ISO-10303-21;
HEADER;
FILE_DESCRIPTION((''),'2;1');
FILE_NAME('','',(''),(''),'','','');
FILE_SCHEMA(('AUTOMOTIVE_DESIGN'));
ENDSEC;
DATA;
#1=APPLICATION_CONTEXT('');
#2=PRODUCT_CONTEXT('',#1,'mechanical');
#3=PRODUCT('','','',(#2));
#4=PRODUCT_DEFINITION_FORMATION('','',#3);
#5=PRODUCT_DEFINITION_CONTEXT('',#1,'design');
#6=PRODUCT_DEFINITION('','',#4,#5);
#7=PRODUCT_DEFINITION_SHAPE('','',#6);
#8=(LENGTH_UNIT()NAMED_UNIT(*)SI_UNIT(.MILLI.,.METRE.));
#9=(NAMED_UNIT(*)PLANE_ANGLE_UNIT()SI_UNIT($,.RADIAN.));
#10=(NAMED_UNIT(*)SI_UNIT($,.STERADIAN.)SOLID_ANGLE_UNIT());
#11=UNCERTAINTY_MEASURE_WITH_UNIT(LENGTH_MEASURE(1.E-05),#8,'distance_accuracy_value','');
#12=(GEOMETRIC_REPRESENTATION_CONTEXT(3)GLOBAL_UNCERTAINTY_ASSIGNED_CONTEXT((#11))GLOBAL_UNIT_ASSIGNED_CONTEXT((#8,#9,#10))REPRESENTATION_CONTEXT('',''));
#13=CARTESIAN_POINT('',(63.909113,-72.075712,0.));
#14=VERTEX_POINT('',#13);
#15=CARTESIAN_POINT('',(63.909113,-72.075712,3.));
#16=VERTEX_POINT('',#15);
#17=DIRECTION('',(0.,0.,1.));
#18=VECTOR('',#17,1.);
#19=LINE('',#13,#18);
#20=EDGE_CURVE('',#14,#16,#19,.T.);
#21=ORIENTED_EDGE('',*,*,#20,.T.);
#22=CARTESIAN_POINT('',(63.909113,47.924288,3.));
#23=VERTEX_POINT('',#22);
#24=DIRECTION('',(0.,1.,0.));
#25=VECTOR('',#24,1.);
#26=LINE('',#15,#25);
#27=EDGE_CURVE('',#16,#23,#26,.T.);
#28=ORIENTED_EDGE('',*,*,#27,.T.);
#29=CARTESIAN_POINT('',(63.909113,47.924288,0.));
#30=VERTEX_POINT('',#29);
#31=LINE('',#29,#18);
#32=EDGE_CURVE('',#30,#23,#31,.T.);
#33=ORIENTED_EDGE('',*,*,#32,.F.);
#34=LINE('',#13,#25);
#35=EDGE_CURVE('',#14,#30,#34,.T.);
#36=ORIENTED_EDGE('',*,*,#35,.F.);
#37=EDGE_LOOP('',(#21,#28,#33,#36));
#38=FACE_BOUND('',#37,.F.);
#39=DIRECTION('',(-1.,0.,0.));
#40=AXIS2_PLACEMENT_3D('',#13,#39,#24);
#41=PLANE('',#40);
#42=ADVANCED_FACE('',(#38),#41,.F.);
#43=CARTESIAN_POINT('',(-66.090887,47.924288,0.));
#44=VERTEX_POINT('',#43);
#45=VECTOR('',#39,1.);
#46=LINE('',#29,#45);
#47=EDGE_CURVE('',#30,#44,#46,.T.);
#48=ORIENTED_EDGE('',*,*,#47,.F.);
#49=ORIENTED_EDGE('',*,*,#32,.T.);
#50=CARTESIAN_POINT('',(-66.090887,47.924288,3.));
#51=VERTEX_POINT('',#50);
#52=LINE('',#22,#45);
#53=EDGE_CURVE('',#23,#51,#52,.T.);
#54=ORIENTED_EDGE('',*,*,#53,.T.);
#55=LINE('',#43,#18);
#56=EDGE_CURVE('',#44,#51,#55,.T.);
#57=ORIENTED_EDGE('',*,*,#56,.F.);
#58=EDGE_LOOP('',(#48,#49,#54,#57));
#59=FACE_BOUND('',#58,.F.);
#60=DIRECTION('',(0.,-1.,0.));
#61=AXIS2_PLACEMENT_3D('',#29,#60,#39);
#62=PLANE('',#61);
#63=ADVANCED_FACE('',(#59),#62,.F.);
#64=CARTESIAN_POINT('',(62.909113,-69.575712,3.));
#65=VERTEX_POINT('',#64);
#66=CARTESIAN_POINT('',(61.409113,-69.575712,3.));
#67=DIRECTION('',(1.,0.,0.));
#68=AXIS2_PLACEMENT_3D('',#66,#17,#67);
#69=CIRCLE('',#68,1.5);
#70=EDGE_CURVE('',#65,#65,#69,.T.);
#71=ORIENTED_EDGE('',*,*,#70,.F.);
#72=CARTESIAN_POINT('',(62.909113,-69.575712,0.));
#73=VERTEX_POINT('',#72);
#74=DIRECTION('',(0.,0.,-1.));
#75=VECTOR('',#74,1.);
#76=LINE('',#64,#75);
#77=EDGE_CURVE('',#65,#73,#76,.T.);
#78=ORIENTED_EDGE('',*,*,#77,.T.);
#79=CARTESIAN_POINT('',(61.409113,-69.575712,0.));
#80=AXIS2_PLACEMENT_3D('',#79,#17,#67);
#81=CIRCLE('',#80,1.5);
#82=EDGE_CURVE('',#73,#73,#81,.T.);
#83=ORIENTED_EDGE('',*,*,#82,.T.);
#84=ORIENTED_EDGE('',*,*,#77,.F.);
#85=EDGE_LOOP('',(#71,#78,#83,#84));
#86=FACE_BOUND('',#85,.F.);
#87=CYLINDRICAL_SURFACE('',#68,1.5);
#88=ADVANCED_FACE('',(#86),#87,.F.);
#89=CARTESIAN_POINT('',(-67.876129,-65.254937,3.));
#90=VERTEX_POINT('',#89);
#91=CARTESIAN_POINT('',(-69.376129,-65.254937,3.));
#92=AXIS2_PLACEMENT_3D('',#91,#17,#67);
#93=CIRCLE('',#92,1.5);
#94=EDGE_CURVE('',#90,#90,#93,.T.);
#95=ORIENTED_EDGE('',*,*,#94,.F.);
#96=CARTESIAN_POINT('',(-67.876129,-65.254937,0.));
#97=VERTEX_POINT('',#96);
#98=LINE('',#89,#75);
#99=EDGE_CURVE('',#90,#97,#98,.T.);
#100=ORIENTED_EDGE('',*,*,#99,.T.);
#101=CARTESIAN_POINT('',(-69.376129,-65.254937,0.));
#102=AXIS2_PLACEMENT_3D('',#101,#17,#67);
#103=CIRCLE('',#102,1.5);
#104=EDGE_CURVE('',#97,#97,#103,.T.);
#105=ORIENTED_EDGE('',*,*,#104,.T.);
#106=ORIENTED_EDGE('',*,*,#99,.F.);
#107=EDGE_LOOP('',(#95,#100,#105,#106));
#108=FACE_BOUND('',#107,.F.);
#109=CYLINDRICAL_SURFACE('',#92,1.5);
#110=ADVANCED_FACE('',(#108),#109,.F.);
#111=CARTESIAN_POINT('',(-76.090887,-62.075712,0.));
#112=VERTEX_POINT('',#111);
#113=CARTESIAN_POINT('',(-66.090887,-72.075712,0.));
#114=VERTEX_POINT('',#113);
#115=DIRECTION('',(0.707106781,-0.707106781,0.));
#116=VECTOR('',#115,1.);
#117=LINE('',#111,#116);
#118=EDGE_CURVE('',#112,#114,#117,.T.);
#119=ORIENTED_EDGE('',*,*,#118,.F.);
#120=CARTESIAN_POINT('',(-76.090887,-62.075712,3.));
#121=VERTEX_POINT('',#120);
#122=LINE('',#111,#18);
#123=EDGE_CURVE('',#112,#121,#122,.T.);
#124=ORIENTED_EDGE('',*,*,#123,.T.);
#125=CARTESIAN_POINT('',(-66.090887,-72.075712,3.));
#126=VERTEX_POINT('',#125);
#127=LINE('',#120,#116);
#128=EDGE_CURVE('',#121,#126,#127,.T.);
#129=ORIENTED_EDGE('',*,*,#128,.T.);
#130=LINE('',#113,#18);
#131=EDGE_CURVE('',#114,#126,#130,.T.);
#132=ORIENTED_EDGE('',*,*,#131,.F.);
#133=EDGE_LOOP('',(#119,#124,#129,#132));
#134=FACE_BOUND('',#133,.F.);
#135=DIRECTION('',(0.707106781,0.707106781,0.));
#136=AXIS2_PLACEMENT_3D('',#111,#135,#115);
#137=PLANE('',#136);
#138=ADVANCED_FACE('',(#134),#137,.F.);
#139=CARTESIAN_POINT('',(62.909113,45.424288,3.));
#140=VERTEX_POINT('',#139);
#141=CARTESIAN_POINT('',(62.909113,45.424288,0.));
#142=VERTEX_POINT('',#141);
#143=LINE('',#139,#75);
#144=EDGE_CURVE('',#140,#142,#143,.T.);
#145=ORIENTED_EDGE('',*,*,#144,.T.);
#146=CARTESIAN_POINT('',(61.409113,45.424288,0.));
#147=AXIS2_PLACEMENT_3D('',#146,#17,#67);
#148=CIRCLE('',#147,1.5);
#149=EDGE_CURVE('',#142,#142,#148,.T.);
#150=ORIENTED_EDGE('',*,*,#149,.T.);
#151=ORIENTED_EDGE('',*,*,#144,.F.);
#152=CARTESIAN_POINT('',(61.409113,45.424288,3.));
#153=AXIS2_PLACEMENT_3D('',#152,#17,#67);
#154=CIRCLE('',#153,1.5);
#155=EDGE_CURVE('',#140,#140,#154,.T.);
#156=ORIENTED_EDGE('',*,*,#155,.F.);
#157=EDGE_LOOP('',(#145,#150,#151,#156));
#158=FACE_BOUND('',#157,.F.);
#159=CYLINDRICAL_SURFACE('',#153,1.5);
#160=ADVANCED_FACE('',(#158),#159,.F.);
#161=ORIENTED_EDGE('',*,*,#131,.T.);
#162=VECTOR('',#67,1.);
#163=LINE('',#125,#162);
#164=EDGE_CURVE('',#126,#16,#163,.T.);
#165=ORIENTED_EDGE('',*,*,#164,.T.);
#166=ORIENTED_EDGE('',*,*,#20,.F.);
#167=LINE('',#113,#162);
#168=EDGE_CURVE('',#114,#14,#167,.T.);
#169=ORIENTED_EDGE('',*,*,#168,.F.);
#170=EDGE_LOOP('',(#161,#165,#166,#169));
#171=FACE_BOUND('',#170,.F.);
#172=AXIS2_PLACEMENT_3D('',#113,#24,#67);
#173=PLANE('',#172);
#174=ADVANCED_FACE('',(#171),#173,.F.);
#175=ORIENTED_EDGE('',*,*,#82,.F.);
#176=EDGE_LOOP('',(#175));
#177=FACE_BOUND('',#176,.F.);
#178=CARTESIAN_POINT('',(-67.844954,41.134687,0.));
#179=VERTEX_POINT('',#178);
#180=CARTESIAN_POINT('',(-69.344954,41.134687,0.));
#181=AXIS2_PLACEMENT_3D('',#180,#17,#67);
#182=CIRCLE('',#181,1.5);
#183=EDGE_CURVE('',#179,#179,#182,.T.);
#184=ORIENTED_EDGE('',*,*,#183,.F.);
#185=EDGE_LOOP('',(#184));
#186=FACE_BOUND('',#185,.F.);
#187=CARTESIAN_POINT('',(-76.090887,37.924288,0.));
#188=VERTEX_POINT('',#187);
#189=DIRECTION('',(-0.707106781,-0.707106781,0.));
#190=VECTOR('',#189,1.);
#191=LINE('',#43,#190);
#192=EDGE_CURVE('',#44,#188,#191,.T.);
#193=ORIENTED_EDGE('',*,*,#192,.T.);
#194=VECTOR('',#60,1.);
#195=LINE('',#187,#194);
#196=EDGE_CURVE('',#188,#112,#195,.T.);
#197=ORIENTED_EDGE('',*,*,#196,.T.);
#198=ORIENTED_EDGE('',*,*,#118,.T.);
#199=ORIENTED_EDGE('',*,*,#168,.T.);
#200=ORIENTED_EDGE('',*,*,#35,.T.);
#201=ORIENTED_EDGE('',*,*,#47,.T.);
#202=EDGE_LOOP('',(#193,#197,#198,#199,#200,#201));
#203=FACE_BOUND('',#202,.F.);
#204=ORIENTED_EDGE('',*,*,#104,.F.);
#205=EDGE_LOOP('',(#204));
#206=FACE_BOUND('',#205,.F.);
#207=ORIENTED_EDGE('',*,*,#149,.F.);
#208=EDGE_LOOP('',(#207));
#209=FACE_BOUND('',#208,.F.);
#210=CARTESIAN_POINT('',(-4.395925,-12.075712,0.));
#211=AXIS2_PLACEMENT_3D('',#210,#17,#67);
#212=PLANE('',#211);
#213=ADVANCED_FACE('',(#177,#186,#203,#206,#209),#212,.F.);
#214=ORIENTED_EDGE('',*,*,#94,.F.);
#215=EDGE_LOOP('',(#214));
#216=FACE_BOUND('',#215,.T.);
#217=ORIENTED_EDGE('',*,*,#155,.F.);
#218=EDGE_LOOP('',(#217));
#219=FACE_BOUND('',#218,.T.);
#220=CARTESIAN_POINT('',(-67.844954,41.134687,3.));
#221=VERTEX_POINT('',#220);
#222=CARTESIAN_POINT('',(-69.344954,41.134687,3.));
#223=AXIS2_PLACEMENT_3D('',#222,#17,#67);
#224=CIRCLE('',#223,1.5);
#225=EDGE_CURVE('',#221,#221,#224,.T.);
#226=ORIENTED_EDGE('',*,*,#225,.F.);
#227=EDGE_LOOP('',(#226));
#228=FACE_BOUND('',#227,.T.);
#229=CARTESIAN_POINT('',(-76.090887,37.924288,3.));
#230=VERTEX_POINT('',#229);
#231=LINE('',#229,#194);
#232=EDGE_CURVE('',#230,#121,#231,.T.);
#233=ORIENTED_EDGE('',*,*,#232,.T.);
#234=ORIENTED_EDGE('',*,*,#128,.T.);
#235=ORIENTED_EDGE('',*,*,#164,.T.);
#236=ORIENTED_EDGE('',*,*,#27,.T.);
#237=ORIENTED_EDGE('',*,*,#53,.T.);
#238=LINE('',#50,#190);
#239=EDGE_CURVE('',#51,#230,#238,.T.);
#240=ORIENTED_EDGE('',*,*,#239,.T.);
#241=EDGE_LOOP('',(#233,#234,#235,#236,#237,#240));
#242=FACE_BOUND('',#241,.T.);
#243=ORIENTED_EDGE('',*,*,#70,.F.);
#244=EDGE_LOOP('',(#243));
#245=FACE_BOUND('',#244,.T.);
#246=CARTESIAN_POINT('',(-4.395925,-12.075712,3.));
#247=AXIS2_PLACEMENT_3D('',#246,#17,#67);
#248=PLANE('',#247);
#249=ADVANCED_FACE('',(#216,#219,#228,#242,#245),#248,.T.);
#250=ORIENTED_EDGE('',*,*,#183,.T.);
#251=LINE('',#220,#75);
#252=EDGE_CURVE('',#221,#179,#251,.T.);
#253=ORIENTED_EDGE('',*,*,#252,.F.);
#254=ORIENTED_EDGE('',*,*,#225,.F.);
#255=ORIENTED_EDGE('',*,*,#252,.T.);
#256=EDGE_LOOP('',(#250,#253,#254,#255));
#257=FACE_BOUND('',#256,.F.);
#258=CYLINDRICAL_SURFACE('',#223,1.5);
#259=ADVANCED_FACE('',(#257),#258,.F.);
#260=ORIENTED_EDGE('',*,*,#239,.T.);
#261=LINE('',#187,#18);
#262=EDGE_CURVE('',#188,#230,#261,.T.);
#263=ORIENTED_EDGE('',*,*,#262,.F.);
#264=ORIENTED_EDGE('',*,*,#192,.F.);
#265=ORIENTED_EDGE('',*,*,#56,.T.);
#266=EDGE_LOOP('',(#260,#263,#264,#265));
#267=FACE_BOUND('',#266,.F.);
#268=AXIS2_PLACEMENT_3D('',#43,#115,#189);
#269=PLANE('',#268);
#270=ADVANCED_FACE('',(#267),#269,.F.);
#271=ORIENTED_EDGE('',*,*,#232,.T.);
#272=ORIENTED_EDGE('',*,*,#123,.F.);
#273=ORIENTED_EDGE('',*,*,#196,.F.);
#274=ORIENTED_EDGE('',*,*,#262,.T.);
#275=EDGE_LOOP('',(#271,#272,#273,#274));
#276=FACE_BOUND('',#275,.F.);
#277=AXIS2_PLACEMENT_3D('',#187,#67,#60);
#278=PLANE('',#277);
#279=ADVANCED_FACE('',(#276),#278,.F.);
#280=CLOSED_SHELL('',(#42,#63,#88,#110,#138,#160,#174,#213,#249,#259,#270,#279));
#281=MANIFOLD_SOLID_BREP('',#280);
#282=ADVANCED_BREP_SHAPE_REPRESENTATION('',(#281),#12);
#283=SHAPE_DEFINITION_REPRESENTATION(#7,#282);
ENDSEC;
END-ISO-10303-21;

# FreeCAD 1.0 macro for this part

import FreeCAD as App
import Part
import Sketcher
from FreeCAD import Vector


def add_polygon(sketch, points):
    """Adds a closed chain of lines whose ends are joined by coincident constraints."""
    first, n = sketch.GeometryCount, len(points)
    for a, b in zip(points, points[1:] + points[:1]):
        sketch.addGeometry(Part.LineSegment(App.Vector(*a, 0), App.Vector(*b, 0)), False)
    for i in range(n):
        sketch.addConstraint(Sketcher.Constraint("Coincident", first + i, 2, first + (i + 1) % n, 1))

doc = App.newDocument("Part")
body = doc.addObject("PartDesign::Body", "Body")

# Sketch on XY plane
sketch1 = body.newObject("Sketcher::SketchObject", "Sketch")
sketch1.AttachmentSupport = (doc.getObject("XY_Plane"), [""])
sketch1.MapMode = "FlatFace"
add_polygon(sketch1, [(64, -72), (64, 48), (-66, 48), (-76, 38), (-76, -62), (-66, -72)])  # lines 0-5
sketch1.addConstraint([
    Sketcher.Constraint("Vertical", 0),
    Sketcher.Constraint("Horizontal", 1),
    Sketcher.Constraint("Vertical", 3),
    Sketcher.Constraint("Horizontal", 5),
    Sketcher.Constraint("Perpendicular", 2, 4),
    Sketcher.Constraint("Vertical", 1, 2, 4, 2),
    Sketcher.Constraint("Equal", 2, 4),
    Sketcher.Constraint("DistanceX", 1, 2, 1, 1, 130.0),
    Sketcher.Constraint("DistanceY", 0, 1, 0, 2, 120.0),
    Sketcher.Constraint("DistanceY", 3, 2, 3, 1, 100.0),
    Sketcher.Constraint("DistanceY", 4, 2, -1, 1, 72.075712),
    Sketcher.Constraint("DistanceX", -1, 1, 0, 2, 63.909113),
])
pad1 = body.newObject("PartDesign::Pad", "Pad")
pad1.Profile = sketch1
pad1.Length = 3

# Sketch on XY plane
sketch2 = body.newObject("Sketcher::SketchObject", "Sketch001")
sketch2.AttachmentSupport = (doc.getObject("XY_Plane"), [""])
sketch2.MapMode = "FlatFace"
sketch2.AttachmentOffset = App.Placement(Vector(0, 0, 3), App.Rotation())
sketch2.addGeometry([
    Part.Circle(Vector(61.4, 45.4, 0), Vector(0, 0, 1), 1.5),
    Part.Circle(Vector(61.4, -69.6, 0), Vector(0, 0, 1), 1.5),
    Part.Circle(Vector(-69.3, 41.1, 0), Vector(0, 0, 1), 1.5),
    Part.Circle(Vector(-69.4, -65.3, 0), Vector(0, 0, 1), 1.5),
], False)
sketch2.addConstraint([
    Sketcher.Constraint("Equal", 0, 1),
    Sketcher.Constraint("Equal", 1, 2),
    Sketcher.Constraint("Equal", 2, 3),
    Sketcher.Constraint("Vertical", 0, 3, 1, 3),
    Sketcher.Constraint("Diameter", 0, 3.0),
    Sketcher.Constraint("DistanceY", 1, 3, 0, 3, 115.0),
    Sketcher.Constraint("DistanceY", 2, 3, 0, 3, 4.289601),
    Sketcher.Constraint("DistanceY", 1, 3, -1, 1, 69.575712),
    Sketcher.Constraint("DistanceX", 3, 3, -1, 1, 69.376129),
    Sketcher.Constraint("DistanceX", -1, 1, 0, 3, 61.409113),
    Sketcher.Constraint("DistanceX", 2, 3, -1, 1, 69.344954),
    Sketcher.Constraint("DistanceY", 3, 3, -1, 1, 65.254937),
])
pocket1 = body.newObject("PartDesign::Pocket", "Pocket")
pocket1.Profile = sketch2
pocket1.Length = 4

doc.recompute()
